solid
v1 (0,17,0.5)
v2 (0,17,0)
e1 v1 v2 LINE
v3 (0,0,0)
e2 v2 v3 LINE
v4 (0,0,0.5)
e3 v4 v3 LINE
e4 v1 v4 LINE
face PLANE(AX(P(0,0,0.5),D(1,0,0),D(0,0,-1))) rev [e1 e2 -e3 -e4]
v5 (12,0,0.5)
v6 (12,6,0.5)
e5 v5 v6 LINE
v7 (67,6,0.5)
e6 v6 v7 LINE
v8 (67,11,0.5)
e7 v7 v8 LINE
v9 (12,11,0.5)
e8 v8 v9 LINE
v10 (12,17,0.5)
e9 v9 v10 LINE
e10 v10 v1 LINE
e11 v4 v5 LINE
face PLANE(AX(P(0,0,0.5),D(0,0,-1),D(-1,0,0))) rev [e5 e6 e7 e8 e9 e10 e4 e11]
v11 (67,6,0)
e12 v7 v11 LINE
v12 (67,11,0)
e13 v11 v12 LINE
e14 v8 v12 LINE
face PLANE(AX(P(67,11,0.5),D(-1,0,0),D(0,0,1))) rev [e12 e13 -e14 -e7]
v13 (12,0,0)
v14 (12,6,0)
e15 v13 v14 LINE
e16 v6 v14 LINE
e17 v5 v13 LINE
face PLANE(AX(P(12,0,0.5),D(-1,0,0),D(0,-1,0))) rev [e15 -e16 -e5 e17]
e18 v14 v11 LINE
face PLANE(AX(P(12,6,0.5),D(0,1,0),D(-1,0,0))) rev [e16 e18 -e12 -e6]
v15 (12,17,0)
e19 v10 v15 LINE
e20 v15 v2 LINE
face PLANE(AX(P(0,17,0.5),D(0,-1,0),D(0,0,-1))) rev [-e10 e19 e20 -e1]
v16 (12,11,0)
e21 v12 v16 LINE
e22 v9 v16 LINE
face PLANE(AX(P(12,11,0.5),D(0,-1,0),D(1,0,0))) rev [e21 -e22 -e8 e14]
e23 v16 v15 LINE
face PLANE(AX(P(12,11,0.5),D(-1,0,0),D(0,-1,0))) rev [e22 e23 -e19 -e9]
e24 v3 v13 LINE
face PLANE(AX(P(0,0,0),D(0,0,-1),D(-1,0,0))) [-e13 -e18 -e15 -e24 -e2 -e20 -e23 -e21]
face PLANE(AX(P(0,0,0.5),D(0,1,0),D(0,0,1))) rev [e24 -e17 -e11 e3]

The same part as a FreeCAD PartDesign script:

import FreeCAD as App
import Part
import Sketcher

V = App.Vector

doc = App.newDocument("Part")
body = doc.addObject("PartDesign::Body", "Body")

sketch1 = doc.addObject("Sketcher::SketchObject", "Sketch")
body.addObject(sketch1)
sketch1.AttachmentSupport = (doc.XY_Plane, [""])
sketch1.MapMode = "FlatFace"
sketch1.addGeometry([
    Part.LineSegment(V(0, 0, 0), V(12, 0, 0)),
    Part.LineSegment(V(12, 0, 0), V(12, 6, 0)),
    Part.LineSegment(V(12, 6, 0), V(67, 6, 0)),
    Part.LineSegment(V(67, 6, 0), V(67, 11, 0)),
    Part.LineSegment(V(67, 11, 0), V(12, 11, 0)),
    Part.LineSegment(V(12, 11, 0), V(12, 17, 0)),
    Part.LineSegment(V(12, 17, 0), V(0, 17, 0)),
    Part.LineSegment(V(0, 17, 0), V(0, 0, 0)),
], False)
sketch1.addConstraint([
    Sketcher.Constraint("Coincident", 0, 2, 1, 1),
    Sketcher.Constraint("Coincident", 1, 2, 2, 1),
    Sketcher.Constraint("Coincident", 2, 2, 3, 1),
    Sketcher.Constraint("Coincident", 3, 2, 4, 1),
    Sketcher.Constraint("Coincident", 4, 2, 5, 1),
    Sketcher.Constraint("Coincident", 5, 2, 6, 1),
    Sketcher.Constraint("Coincident", 6, 2, 7, 1),
    Sketcher.Constraint("Coincident", 7, 2, 0, 1),
    Sketcher.Constraint("Horizontal", 0),
    Sketcher.Constraint("Vertical", 1),
    Sketcher.Constraint("Horizontal", 2),
    Sketcher.Constraint("Vertical", 3),
    Sketcher.Constraint("Horizontal", 4),
    Sketcher.Constraint("Vertical", 5),
    Sketcher.Constraint("Horizontal", 6),
    Sketcher.Constraint("Vertical", 7),
    Sketcher.Constraint("Coincident", 7, 2, -1, 1),
    Sketcher.Constraint("Vertical", 1, 2, 4, 2),
    Sketcher.Constraint("Equal", 1, 5),
    Sketcher.Constraint("DistanceX", 0, 1, 0, 2, 12.0),
    Sketcher.Constraint("DistanceX", 2, 1, 2, 2, 55.0),
    Sketcher.Constraint("DistanceY", 1, 1, 1, 2, 6.0),
    Sketcher.Constraint("DistanceY", 3, 1, 3, 2, 5.0),
])
pad1 = doc.addObject("PartDesign::Pad", "Pad")
body.addObject(pad1)
pad1.Profile = sketch1
pad1.Length = 0.5

doc.recompute()
